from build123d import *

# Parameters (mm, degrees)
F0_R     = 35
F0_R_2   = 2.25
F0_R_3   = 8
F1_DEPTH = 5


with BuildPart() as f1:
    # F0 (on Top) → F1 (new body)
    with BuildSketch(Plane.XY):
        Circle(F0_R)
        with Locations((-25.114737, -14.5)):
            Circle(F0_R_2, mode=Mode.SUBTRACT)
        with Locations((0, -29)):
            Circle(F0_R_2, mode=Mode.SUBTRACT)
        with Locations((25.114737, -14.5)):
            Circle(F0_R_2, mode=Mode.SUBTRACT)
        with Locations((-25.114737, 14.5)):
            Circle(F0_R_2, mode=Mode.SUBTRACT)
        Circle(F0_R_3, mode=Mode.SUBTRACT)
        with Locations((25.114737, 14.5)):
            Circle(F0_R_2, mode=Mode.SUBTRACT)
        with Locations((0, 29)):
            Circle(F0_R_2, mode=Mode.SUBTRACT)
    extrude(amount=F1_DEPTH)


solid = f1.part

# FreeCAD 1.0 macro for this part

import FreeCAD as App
import Part
import Sketcher

V = App.Vector

doc = App.newDocument("Part")
body = doc.addObject("PartDesign::Body", "Body")

# Sketch on XY plane
sketch1 = body.newObject("Sketcher::SketchObject", "Sketch")
sketch1.AttachmentSupport = (doc.getObject("XY_Plane"), [""])
sketch1.MapMode = "FlatFace"
sketch1.addGeometry([
    Part.Circle(V(0, 0, 0), V(0, 0, 1), 35),  # 0
    Part.Circle(V(-25.1, -14.5, 0), V(0, 0, 1), 2.2),  # 1
    Part.Circle(V(0, -29, 0), V(0, 0, 1), 2.2),  # 2
    Part.Circle(V(25.1, -14.5, 0), V(0, 0, 1), 2.2),  # 3
    Part.Circle(V(-25.1, 14.5, 0), V(0, 0, 1), 2.2),  # 4
    Part.Circle(V(0, 0, 0), V(0, 0, 1), 8),  # 5
    Part.Circle(V(25.1, 14.5, 0), V(0, 0, 1), 2.2),  # 6
    Part.Circle(V(0, 29, 0), V(0, 0, 1), 2.2),  # 7
], False)
sketch1.addConstraint([
    Sketcher.Constraint("Coincident", 0, 3, -1, 1),
    Sketcher.Constraint("Coincident", 5, 3, -1, 1),
    Sketcher.Constraint("Equal", 1, 2),
    Sketcher.Constraint("Equal", 2, 3),
    Sketcher.Constraint("Equal", 3, 4),
    Sketcher.Constraint("Equal", 4, 6),
    Sketcher.Constraint("Equal", 6, 7),
    Sketcher.Constraint("Symmetric", 3, 3, 4, 3, -1, 1),
    Sketcher.Constraint("Symmetric", 1, 3, 6, 3, -1, 1),
    Sketcher.Constraint("Symmetric", 2, 3, 7, 3, -1, 1),
    Sketcher.Constraint("Symmetric", 1, 3, 3, 3, -2),
    Sketcher.Constraint("PointOnObject", 2, 3, -2),
    Sketcher.Constraint("Diameter", 0, 70.0),
    Sketcher.Constraint("Diameter", 5, 16.0),
    Sketcher.Constraint("Diameter", 1, 4.5),
    Sketcher.Constraint("DistanceY", 2, 3, -1, 1, 29.0),
    Sketcher.Constraint("DistanceY", 1, 3, 4, 3, 29.0),
    Sketcher.Constraint("DistanceX", 1, 3, -1, 1, 25.114737),
])
pad1 = body.newObject("PartDesign::Pad", "Pad")
pad1.Profile = sketch1
pad1.Length = 5

doc.recompute()
